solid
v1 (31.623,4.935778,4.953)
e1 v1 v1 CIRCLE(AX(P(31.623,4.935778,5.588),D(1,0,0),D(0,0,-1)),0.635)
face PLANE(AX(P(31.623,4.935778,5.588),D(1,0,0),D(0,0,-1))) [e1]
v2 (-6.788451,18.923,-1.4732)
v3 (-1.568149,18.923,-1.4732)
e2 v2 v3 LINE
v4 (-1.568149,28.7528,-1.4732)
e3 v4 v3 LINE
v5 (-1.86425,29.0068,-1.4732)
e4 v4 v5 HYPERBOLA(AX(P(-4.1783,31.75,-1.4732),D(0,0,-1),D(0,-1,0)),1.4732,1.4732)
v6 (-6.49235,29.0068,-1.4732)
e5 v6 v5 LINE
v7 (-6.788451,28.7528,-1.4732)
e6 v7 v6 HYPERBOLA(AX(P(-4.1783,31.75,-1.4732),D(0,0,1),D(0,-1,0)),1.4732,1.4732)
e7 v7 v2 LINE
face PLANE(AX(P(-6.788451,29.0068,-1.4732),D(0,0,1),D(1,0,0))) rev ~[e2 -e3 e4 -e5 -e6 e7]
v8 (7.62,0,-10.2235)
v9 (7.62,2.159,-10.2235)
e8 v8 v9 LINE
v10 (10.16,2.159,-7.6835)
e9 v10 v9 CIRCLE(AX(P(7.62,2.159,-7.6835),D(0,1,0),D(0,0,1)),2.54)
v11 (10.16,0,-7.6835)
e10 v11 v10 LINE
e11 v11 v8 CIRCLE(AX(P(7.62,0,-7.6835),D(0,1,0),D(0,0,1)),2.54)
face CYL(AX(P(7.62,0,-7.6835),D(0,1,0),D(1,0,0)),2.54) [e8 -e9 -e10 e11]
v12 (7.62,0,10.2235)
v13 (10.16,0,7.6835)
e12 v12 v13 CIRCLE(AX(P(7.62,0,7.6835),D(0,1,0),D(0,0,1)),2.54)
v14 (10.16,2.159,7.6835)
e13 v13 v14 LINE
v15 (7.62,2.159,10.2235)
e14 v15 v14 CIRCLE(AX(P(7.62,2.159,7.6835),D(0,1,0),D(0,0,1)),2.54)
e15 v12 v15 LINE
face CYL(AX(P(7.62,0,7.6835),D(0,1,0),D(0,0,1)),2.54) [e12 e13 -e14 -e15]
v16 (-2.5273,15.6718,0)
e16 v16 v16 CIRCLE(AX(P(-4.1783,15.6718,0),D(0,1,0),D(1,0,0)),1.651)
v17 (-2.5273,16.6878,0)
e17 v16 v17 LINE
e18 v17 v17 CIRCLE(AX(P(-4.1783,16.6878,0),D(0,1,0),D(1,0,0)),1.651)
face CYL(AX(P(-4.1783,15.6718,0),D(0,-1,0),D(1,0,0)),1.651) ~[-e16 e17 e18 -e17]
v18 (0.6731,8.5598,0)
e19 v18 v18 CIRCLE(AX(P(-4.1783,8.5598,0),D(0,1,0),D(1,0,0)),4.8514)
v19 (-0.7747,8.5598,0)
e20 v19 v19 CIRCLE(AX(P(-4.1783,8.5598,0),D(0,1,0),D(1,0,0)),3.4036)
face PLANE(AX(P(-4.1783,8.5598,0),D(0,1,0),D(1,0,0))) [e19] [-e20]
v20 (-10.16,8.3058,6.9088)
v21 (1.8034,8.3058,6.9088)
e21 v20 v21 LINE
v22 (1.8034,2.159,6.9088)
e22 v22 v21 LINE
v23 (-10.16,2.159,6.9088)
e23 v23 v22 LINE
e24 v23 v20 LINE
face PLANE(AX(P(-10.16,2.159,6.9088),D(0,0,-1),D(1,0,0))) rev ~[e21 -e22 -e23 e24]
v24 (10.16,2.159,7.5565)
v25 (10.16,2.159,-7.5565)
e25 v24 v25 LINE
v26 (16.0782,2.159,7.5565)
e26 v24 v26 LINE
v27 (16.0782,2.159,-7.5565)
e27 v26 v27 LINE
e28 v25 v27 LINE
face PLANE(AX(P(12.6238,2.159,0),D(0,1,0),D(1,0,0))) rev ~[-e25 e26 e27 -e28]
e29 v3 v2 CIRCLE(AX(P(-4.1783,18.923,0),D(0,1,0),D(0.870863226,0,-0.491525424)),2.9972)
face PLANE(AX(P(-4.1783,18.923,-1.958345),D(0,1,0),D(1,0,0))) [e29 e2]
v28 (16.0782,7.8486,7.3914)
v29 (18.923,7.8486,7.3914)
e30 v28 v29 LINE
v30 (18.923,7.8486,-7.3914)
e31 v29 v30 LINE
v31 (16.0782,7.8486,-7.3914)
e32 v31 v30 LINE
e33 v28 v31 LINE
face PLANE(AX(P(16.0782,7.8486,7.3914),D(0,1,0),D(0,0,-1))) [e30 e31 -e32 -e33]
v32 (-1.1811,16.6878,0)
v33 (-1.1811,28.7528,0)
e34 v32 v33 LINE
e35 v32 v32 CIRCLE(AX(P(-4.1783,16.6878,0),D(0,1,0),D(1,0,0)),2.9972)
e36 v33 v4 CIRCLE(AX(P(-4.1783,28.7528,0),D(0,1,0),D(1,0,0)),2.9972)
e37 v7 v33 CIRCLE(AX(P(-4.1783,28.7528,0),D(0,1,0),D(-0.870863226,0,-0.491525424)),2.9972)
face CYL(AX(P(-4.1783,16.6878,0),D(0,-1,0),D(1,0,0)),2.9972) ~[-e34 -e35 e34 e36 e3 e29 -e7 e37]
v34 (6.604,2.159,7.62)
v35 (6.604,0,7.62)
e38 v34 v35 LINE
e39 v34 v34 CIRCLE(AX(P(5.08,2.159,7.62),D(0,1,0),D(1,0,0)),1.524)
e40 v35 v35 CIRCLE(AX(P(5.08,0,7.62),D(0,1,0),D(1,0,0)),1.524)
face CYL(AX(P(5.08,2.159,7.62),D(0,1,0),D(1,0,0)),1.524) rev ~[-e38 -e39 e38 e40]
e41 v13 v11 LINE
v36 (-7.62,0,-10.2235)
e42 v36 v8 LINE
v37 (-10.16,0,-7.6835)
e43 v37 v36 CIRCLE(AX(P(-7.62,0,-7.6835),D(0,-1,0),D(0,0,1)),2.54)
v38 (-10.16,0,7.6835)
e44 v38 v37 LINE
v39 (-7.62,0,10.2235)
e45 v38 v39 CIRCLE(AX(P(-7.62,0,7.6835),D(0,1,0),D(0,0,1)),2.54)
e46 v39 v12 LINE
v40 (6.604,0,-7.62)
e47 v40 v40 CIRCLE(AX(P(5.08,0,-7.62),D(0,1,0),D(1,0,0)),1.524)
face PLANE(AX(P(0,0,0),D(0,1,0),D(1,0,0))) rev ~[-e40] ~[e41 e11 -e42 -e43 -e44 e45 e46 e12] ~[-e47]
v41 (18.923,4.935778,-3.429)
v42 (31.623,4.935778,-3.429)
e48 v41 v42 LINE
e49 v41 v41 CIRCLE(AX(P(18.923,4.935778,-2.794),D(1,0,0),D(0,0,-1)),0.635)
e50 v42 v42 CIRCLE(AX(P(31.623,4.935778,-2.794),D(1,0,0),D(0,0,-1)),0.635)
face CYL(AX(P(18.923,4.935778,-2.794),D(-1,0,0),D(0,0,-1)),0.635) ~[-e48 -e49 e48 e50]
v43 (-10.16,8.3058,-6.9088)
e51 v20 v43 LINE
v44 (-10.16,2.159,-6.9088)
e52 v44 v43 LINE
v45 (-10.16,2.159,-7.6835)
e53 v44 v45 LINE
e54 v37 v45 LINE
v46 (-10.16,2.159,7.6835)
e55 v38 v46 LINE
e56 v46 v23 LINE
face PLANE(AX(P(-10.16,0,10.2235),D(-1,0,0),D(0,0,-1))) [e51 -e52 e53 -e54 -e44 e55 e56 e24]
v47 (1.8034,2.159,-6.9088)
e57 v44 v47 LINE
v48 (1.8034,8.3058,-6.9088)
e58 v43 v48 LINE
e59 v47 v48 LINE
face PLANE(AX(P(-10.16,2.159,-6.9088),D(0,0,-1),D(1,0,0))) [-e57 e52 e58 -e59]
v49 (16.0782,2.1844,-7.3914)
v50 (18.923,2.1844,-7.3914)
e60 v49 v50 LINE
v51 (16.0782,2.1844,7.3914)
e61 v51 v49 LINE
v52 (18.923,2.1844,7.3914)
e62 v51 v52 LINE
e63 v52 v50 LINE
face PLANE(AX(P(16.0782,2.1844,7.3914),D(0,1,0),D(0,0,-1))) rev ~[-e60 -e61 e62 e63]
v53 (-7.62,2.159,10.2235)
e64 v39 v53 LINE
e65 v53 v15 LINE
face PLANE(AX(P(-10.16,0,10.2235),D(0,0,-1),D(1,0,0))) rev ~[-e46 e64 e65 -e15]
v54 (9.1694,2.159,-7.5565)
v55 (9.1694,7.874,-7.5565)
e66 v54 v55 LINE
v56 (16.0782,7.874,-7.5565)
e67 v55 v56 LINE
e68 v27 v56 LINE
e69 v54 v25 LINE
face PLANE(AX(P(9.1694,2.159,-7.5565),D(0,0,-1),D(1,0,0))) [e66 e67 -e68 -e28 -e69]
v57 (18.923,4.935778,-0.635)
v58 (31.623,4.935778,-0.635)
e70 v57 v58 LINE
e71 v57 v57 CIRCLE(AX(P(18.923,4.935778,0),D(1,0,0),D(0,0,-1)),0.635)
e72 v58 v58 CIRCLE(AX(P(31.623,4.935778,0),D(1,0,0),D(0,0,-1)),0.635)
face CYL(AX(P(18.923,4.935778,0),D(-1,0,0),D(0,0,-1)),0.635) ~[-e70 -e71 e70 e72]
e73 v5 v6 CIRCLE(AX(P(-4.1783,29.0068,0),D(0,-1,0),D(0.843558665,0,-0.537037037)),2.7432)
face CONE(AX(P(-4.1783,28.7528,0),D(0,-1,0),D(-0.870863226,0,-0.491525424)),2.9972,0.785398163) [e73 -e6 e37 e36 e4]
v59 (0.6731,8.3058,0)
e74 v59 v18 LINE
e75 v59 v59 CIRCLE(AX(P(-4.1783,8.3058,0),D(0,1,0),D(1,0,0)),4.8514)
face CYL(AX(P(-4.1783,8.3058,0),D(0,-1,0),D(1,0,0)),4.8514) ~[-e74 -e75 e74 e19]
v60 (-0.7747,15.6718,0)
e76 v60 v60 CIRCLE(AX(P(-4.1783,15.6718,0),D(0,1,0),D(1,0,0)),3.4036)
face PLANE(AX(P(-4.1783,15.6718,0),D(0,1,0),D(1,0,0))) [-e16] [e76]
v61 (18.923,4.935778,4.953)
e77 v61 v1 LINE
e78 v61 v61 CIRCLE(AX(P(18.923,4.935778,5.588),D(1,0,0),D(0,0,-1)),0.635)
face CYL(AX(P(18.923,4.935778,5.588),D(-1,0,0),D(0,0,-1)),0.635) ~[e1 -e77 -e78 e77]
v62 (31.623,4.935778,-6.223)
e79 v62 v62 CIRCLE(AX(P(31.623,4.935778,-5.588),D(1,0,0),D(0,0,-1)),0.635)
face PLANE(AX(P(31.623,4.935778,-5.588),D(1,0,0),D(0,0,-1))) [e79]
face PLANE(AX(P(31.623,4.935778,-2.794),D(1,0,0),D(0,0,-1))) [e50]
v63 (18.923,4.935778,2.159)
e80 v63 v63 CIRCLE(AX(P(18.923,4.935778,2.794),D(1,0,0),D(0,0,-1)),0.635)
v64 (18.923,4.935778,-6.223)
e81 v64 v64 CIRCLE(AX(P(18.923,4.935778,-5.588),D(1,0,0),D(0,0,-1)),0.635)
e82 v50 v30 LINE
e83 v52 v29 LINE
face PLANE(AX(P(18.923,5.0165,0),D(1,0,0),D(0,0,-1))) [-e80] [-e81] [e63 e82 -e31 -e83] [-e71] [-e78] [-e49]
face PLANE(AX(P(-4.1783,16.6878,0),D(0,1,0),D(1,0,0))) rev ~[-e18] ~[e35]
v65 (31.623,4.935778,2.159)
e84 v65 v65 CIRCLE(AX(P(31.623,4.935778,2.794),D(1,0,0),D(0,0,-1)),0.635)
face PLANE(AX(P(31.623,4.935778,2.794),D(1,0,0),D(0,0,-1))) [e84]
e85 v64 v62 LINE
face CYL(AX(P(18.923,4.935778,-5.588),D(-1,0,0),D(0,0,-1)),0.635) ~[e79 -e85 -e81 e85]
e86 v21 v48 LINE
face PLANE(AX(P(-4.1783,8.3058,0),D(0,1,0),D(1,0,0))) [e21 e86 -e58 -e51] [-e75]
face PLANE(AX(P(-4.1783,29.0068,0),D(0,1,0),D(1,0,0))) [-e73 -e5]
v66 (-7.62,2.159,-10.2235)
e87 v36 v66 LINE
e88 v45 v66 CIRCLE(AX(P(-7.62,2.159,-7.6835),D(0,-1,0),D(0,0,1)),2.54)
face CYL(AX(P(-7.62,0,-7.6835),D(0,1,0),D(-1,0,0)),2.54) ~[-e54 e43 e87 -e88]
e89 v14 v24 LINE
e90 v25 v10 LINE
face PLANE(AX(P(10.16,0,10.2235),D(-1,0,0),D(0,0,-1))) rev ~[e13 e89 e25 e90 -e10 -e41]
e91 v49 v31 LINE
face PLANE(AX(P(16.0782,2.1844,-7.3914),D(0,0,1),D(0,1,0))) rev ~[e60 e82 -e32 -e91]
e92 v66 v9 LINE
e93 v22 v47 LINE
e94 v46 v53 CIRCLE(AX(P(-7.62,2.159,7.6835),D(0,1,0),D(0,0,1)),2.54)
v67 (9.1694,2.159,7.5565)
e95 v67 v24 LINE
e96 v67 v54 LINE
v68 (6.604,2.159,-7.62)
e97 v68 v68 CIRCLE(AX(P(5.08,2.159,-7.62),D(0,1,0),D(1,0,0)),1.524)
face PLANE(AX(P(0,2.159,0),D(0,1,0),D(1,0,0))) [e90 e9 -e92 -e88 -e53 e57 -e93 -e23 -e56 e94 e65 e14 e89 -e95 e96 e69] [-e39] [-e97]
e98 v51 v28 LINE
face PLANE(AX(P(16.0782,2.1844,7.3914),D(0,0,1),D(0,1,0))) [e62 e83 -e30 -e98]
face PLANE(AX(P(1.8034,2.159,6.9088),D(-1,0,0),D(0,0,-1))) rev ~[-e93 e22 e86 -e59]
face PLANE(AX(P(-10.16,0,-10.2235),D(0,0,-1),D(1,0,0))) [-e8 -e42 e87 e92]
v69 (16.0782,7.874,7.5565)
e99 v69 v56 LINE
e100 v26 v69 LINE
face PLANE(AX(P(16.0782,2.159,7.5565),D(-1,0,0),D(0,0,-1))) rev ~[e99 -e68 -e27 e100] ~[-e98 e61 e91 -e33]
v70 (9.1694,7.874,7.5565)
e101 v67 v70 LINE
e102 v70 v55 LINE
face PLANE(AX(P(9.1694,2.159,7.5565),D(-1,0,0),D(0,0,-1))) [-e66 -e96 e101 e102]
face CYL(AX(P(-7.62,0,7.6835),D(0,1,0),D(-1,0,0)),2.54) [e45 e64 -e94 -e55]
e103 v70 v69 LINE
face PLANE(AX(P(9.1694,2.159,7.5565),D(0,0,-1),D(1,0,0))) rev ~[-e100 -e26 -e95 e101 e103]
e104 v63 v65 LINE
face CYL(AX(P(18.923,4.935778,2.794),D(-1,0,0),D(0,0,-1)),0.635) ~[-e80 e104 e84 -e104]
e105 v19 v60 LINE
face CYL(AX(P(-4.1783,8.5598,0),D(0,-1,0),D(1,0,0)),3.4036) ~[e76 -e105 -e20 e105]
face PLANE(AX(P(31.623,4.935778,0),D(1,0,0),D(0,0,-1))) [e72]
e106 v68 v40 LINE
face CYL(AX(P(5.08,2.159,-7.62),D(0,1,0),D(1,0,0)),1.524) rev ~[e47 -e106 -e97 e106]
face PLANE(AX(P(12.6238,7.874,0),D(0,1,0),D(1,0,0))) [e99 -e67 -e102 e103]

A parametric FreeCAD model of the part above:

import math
import FreeCAD as App
import Part
import Sketcher
Q = App.Units.Quantity


def edges_at(feature, points):
    """Names of the edges that pass closest to the given points."""
    edges = feature.Shape.Edges
    near = lambda p: min(range(len(edges)), key=lambda i: edges[i].distToShape(Part.Vertex(*p))[0])
    return sorted({f"Edge{near(p) + 1}" for p in points})


def add_polygon(sketch, points):
    """Adds a closed chain of lines whose ends are joined by coincident constraints."""
    first, n = sketch.GeometryCount, len(points)
    for a, b in zip(points, points[1:] + points[:1]):
        sketch.addGeometry(Part.LineSegment(App.Vector(*a, 0), App.Vector(*b, 0)), False)
    for i in range(n):
        sketch.addConstraint(Sketcher.Constraint("Coincident", first + i, 2, first + (i + 1) % n, 1))

doc = App.newDocument("Part")
body = doc.addObject("PartDesign::Body", "Body")

sketch1 = body.newObject("Sketcher::SketchObject", "Sketch")
sketch1.AttachmentSupport = (doc.getObject("XZ_Plane"), [""])
sketch1.MapMode = "FlatFace"
add_polygon(sketch1, [(-10.16, -10.2235), (-10.16, 10.2235), (10.16, 10.2235), (10.16, -10.2235)])
sketch1.addConstraint([
    Sketcher.Constraint("Vertical", 0),
    Sketcher.Constraint("Horizontal", 1),
    Sketcher.Constraint("Vertical", 2),
    Sketcher.Constraint("Horizontal", 3),
    Sketcher.Constraint("Symmetric", 0, 2, 2, 2, -1, 1),
    Sketcher.Constraint("DistanceX", 1, 1, 1, 2, Q("0.8 in")),
    Sketcher.Constraint("DistanceY", 0, 1, 0, 2, Q("0.805 in")),
])
pad1 = body.newObject("PartDesign::Pad", "Pad")
pad1.Profile = sketch1
pad1.Length = Q("0.085 in")
pad1.Reversed = True
doc.recompute()

fillet = body.newObject("PartDesign::Fillet", "Fillet")
fillet.Base = (pad1, edges_at(pad1, [
    (-10.16, 1.079, -10.223),
    (10.16, 1.079, -10.223),
    (10.16, 1.079, 10.223),
    (-10.16, 1.079, 10.223),
]))
fillet.Radius = Q("0.1 in")

sketch2 = body.newObject("Sketcher::SketchObject", "Sketch001")
sketch2.AttachmentSupport = (doc.getObject("XZ_Plane"), [""])
sketch2.MapMode = "FlatFace"
sketch2.AttachmentOffset = App.Placement(App.Vector(0, 0, -0.085 * 25.4), App.Rotation())
add_polygon(sketch2, [(9.1694, -7.5565), (9.1694, 7.5565), (16.0782, 7.5565), (16.0782, -7.5565)])
sketch2.addConstraint([
    Sketcher.Constraint("Vertical", 0),
    Sketcher.Constraint("Horizontal", 1),
    Sketcher.Constraint("Vertical", 2),
    Sketcher.Constraint("Horizontal", 3),
    Sketcher.Constraint("DistanceX", 1, 1, 1, 2, Q("0.272 in")),
    Sketcher.Constraint("DistanceY", 0, 1, 0, 2, Q("0.595 in")),
    Sketcher.Constraint("DistanceX", -1, 1, 0, 2, Q("0.361 in")),
    Sketcher.Constraint("DistanceY", -1, 1, 0, 2, Q("0.2975 in")),
])
pad2 = body.newObject("PartDesign::Pad", "Pad001")
pad2.Profile = sketch2
pad2.Length = Q("0.225 in")
pad2.Reversed = True

sketch3 = body.newObject("Sketcher::SketchObject", "Sketch002")
sketch3.AttachmentSupport = (doc.getObject("XZ_Plane"), [""])
sketch3.MapMode = "FlatFace"
sketch3.AttachmentOffset = App.Placement(App.Vector(0, 0, -0.085 * 25.4), App.Rotation())
add_polygon(sketch3, [(-10.16, -6.9088), (-10.16, 6.9088), (1.8034, 6.9088), (1.8034, -6.9088)])
sketch3.addConstraint([
    Sketcher.Constraint("Vertical", 0),
    Sketcher.Constraint("Horizontal", 1),
    Sketcher.Constraint("Vertical", 2),
    Sketcher.Constraint("Horizontal", 3),
    Sketcher.Constraint("DistanceX", 0, 2, -1, 1, Q("0.4 in")),
    Sketcher.Constraint("DistanceX", 1, 1, 1, 2, Q("0.471 in")),
    Sketcher.Constraint("DistanceY", 0, 1, 0, 2, Q("0.544 in")),
    Sketcher.Constraint("DistanceY", -1, 1, 0, 2, Q("0.272 in")),
])
pad3 = body.newObject("PartDesign::Pad", "Pad002")
pad3.Profile = sketch3
pad3.Length = Q("0.242 in")
pad3.Reversed = True

sketch4 = body.newObject("Sketcher::SketchObject", "Sketch003")
sketch4.AttachmentSupport = (doc.getObject("XZ_Plane"), [""])
sketch4.MapMode = "FlatFace"
sketch4.AttachmentOffset = App.Placement(App.Vector(0, 0, -0.327 * 25.4), App.Rotation())
sketch4.addGeometry(Part.Circle(App.Vector(-4.1783, 0, 0), App.Vector(0, 0, 1), 4.8514), False)
sketch4.addConstraint([
    Sketcher.Constraint("PointOnObject", 0, 3, -1),
    Sketcher.Constraint("Diameter", 0, Q("0.382 in")),
    Sketcher.Constraint("DistanceX", 0, 3, -1, 1, Q("0.1645 in")),
])
pad4 = body.newObject("PartDesign::Pad", "Pad003")
pad4.Profile = sketch4
pad4.Length = Q("0.01 in")
pad4.Reversed = True

sketch5 = body.newObject("Sketcher::SketchObject", "Sketch004")
sketch5.AttachmentSupport = (doc.getObject("XZ_Plane"), [""])
sketch5.MapMode = "FlatFace"
sketch5.AttachmentOffset = App.Placement(App.Vector(0, 0, -0.337 * 25.4), App.Rotation())
sketch5.addGeometry(Part.Circle(App.Vector(-4.1783, 0, 0), App.Vector(0, 0, 1), 3.4036), False)
sketch5.addConstraint([
    Sketcher.Constraint("PointOnObject", 0, 3, -1),
    Sketcher.Constraint("Diameter", 0, Q("0.268 in")),
    Sketcher.Constraint("DistanceX", 0, 3, -1, 1, Q("0.1645 in")),
])
pad5 = body.newObject("PartDesign::Pad", "Pad004")
pad5.Profile = sketch5
pad5.Length = Q("0.28 in")
pad5.Reversed = True

sketch6 = body.newObject("Sketcher::SketchObject", "Sketch005")
sketch6.AttachmentSupport = (doc.getObject("XZ_Plane"), [""])
sketch6.MapMode = "FlatFace"
sketch6.AttachmentOffset = App.Placement(App.Vector(0, 0, -0.617 * 25.4), App.Rotation())
sketch6.addGeometry(Part.Circle(App.Vector(-4.1783, 0, 0), App.Vector(0, 0, 1), 1.651), False)
sketch6.addConstraint([
    Sketcher.Constraint("PointOnObject", 0, 3, -1),
    Sketcher.Constraint("Diameter", 0, Q("0.13 in")),
    Sketcher.Constraint("DistanceX", 0, 3, -1, 1, Q("0.1645 in")),
])
pad6 = body.newObject("PartDesign::Pad", "Pad005")
pad6.Profile = sketch6
pad6.Length = Q("0.04 in")
pad6.Reversed = True

sketch7 = body.newObject("Sketcher::SketchObject", "Sketch006")
sketch7.AttachmentSupport = (doc.getObject("XZ_Plane"), [""])
sketch7.MapMode = "FlatFace"
sketch7.AttachmentOffset = App.Placement(App.Vector(0, 0, -0.657 * 25.4), App.Rotation())
sketch7.addGeometry(Part.Circle(App.Vector(-4.1783, 0, 0), App.Vector(0, 0, 1), 2.9972), False)
sketch7.addConstraint([
    Sketcher.Constraint("PointOnObject", 0, 3, -1),
    Sketcher.Constraint("Diameter", 0, Q("0.236 in")),
    Sketcher.Constraint("DistanceX", 0, 3, -1, 1, Q("0.1645 in")),
])
pad7 = body.newObject("PartDesign::Pad", "Pad006")
pad7.Profile = sketch7
pad7.Length = Q("0.485 in")
pad7.Reversed = True

sketch8 = body.newObject("Sketcher::SketchObject", "Sketch007")
sketch8.AttachmentSupport = (doc.getObject("XZ_Plane"), [""])
sketch8.MapMode = "FlatFace"
sketch8.AttachmentOffset = App.Placement(App.Vector(0, 0, -1.142 * 25.4), App.Rotation())
sketch8.addGeometry([
    Part.LineSegment(App.Vector(-6.788451, -1.4732, 0), App.Vector(-1.568149, -1.4732, 0)),
    Part.ArcOfCircle(Part.Circle(App.Vector(-4.1783, 0, 0), App.Vector(0, 0, 1), 2.9972), math.radians(-150.559107), math.radians(-29.440893)),
], False)
sketch8.addConstraint([
    Sketcher.Constraint("Coincident", 0, 1, 1, 1),
    Sketcher.Constraint("Coincident", 1, 2, 0, 2),
    Sketcher.Constraint("Horizontal", 0),
    Sketcher.Constraint("PointOnObject", 1, 3, -1),
    Sketcher.Constraint("Radius", 1, Q("0.118 in")),
    Sketcher.Constraint("DistanceY", 0, 1, -1, 1, Q("0.058 in")),
    Sketcher.Constraint("DistanceX", 1, 3, -1, 1, Q("0.1645 in")),
])
pocket1 = body.newObject("PartDesign::Pocket", "Pocket")
pocket1.Profile = sketch8
pocket1.Length = Q("0.397 in")
pocket1.Reversed = True

sketch9 = body.newObject("Sketcher::SketchObject", "Sketch008")
sketch9.AttachmentSupport = (doc.getObject("YZ_Plane"), [""])
sketch9.MapMode = "FlatFace"
sketch9.AttachmentOffset = App.Placement(App.Vector(0, 0, 0.633 * 25.4), App.Rotation())
add_polygon(sketch9, [(7.8486, 7.3914), (2.1844, 7.3914), (2.1844, -7.3914), (7.8486, -7.3914)])
sketch9.addConstraint([
    Sketcher.Constraint("Horizontal", 0),
    Sketcher.Constraint("Vertical", 1),
    Sketcher.Constraint("Horizontal", 2),
    Sketcher.Constraint("Vertical", 3),
    Sketcher.Constraint("DistanceX", 0, 2, 0, 1, Q("0.223 in")),
    Sketcher.Constraint("DistanceY", 1, 2, 1, 1, Q("0.582 in")),
    Sketcher.Constraint("DistanceX", -1, 1, 0, 2, Q("0.086 in")),
    Sketcher.Constraint("DistanceY", -1, 1, 0, 2, Q("0.291 in")),
])
pad8 = body.newObject("PartDesign::Pad", "Pad007")
pad8.Profile = sketch9
pad8.Length = Q("0.112 in")

sketch10 = body.newObject("Sketcher::SketchObject", "Sketch009")
sketch10.AttachmentSupport = (doc.getObject("YZ_Plane"), [""])
sketch10.MapMode = "FlatFace"
sketch10.AttachmentOffset = App.Placement(App.Vector(0, 0, 0.745 * 25.4), App.Rotation())
sketch10.addGeometry([
    Part.Circle(App.Vector(4.935778, 0, 0), App.Vector(0, 0, 1), 0.635),
    Part.Circle(App.Vector(4.935778, -2.794, 0), App.Vector(0, 0, 1), 0.635),
    Part.Circle(App.Vector(4.935778, -5.588, 0), App.Vector(0, 0, 1), 0.635),
    Part.Circle(App.Vector(4.935778, 2.794, 0), App.Vector(0, 0, 1), 0.635),
    Part.Circle(App.Vector(4.935778, 5.588, 0), App.Vector(0, 0, 1), 0.635),
], False)
sketch10.addConstraint([
    Sketcher.Constraint("Equal", 0, 1),
    Sketcher.Constraint("Equal", 1, 2),
    Sketcher.Constraint("Equal", 2, 3),
    Sketcher.Constraint("Equal", 3, 4),
    Sketcher.Constraint("Symmetric", 1, 3, 3, 3, -1),
    Sketcher.Constraint("Symmetric", 2, 3, 4, 3, -1),
    Sketcher.Constraint("PointOnObject", 0, 3, -1),
    Sketcher.Constraint("Vertical", 0, 3, 1, 3),
    Sketcher.Constraint("Vertical", 1, 3, 2, 3),
    Sketcher.Constraint("Diameter", 0, Q("0.05 in")),
    Sketcher.Constraint("DistanceY", 1, 3, -1, 1, Q("0.11 in")),
    Sketcher.Constraint("DistanceY", 2, 3, -1, 1, Q("0.22 in")),
    Sketcher.Constraint("DistanceX", -1, 1, 0, 3, 4.935778),
])
pad9 = body.newObject("PartDesign::Pad", "Pad008")
pad9.Profile = sketch10
pad9.Length = Q("0.5 in")

sketch11 = body.newObject("Sketcher::SketchObject", "Sketch010")
sketch11.AttachmentSupport = (doc.getObject("XZ_Plane"), [""])
sketch11.MapMode = "FlatFace"
sketch11.AttachmentOffset = App.Placement(App.Vector(0, 0, -0.085 * 25.4), App.Rotation())
sketch11.addGeometry([
    Part.Circle(App.Vector(5.08, -7.62, 0), App.Vector(0, 0, 1), 1.524),
    Part.Circle(App.Vector(5.08, 7.62, 0), App.Vector(0, 0, 1), 1.524),
], False)
sketch11.addConstraint([
    Sketcher.Constraint("Equal", 0, 1),
    Sketcher.Constraint("Symmetric", 0, 3, 1, 3, -1),
    Sketcher.Constraint("Diameter", 0, Q("0.12 in")),
    Sketcher.Constraint("DistanceX", -1, 1, 0, 3, Q("0.2 in")),
    Sketcher.Constraint("DistanceY", 0, 3, -1, 1, Q("0.3 in")),
])
pocket2 = body.newObject("PartDesign::Pocket", "Pocket001")
pocket2.Profile = sketch11
pocket2.Length = Q("0.5 in")
pocket2.Reversed = True
doc.recompute()

chamfer = body.newObject("PartDesign::Chamfer", "Chamfer")
chamfer.Base = (pocket2, edges_at(pocket2, [(-4.94, 29.007, 2.899)]))
chamfer.Size = Q("0.01 in")

doc.recompute()
